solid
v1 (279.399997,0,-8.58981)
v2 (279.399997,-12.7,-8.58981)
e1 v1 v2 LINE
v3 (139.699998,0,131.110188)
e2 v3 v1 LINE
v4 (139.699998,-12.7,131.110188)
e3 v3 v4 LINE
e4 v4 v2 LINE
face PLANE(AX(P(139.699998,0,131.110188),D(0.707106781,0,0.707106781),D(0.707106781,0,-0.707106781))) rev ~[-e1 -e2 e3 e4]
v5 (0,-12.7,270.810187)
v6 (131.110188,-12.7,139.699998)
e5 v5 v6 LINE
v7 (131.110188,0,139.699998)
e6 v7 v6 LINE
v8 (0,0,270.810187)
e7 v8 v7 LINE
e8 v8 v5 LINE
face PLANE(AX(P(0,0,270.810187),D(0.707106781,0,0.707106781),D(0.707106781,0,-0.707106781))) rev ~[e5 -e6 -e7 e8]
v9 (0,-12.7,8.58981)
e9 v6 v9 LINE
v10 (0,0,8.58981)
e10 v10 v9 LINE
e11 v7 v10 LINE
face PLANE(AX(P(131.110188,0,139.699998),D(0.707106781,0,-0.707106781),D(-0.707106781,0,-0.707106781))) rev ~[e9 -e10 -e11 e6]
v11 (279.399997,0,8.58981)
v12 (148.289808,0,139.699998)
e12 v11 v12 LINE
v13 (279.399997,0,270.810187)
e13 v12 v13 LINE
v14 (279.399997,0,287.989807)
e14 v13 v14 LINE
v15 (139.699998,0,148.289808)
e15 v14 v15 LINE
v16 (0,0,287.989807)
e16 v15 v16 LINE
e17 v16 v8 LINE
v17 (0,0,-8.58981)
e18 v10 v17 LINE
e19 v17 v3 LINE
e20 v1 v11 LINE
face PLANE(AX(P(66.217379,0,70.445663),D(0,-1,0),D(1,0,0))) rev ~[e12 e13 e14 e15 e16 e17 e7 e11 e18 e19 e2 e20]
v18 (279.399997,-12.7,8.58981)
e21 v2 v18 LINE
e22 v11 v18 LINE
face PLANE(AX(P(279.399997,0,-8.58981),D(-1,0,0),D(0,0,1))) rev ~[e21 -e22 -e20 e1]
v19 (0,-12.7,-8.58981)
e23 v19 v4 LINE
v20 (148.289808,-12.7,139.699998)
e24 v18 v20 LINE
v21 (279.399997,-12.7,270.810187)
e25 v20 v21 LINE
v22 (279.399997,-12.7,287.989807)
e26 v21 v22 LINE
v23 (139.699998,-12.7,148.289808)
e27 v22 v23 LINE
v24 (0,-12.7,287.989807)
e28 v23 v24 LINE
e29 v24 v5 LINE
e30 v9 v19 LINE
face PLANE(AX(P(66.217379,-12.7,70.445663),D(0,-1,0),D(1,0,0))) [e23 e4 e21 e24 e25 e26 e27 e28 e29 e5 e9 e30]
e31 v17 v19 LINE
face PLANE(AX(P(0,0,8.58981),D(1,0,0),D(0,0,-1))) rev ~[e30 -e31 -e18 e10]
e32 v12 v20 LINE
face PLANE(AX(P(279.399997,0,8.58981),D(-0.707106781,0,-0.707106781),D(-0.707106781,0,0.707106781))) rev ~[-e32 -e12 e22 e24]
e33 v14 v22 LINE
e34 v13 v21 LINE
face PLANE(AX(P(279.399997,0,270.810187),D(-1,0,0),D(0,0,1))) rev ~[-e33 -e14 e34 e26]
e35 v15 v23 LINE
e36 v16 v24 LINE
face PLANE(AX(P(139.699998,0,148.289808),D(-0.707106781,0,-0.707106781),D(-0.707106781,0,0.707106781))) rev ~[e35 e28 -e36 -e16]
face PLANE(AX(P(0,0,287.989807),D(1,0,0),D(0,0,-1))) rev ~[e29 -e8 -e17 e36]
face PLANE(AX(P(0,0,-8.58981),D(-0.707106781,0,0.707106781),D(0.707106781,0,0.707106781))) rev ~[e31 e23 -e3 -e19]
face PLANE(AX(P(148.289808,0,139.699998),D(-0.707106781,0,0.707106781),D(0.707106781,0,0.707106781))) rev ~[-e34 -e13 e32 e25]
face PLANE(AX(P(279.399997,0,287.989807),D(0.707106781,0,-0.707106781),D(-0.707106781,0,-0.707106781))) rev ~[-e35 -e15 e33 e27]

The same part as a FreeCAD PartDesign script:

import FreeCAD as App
import Part
import Sketcher
Q = App.Units.Quantity

doc = App.newDocument("Part")
body = doc.addObject("PartDesign::Body", "Body")

# Sketch on XZ plane
sketch1 = body.newObject("Sketcher::SketchObject", "Sketch")
sketch1.AttachmentSupport = (doc.getObject("XZ_Plane"), [""])
sketch1.MapMode = "FlatFace"
sketch1.addGeometry([
    Part.LineSegment(App.Vector(0, 9, 0), App.Vector(0, -9, 0)),  # 0
    Part.LineSegment(App.Vector(0, -9, 0), App.Vector(140, 131, 0)),  # 1
    Part.LineSegment(App.Vector(140, 131, 0), App.Vector(279, -9, 0)),  # 2
    Part.LineSegment(App.Vector(279, -9, 0), App.Vector(279, 9, 0)),  # 3
    Part.LineSegment(App.Vector(279, 9, 0), App.Vector(148, 140, 0)),  # 4
    Part.LineSegment(App.Vector(148, 140, 0), App.Vector(279, 271, 0)),  # 5
    Part.LineSegment(App.Vector(279, 271, 0), App.Vector(279, 288, 0)),  # 6
    Part.LineSegment(App.Vector(279, 288, 0), App.Vector(140, 148, 0)),  # 7
    Part.LineSegment(App.Vector(140, 148, 0), App.Vector(0, 288, 0)),  # 8
    Part.LineSegment(App.Vector(0, 288, 0), App.Vector(0, 271, 0)),  # 9
    Part.LineSegment(App.Vector(0, 271, 0), App.Vector(131, 140, 0)),  # 10
    Part.LineSegment(App.Vector(131, 140, 0), App.Vector(0, 9, 0)),  # 11
], False)
sketch1.addConstraint([
    Sketcher.Constraint("Coincident", 0, 2, 1, 1),
    Sketcher.Constraint("Coincident", 1, 2, 2, 1),
    Sketcher.Constraint("Coincident", 2, 2, 3, 1),
    Sketcher.Constraint("Coincident", 3, 2, 4, 1),
    Sketcher.Constraint("Coincident", 4, 2, 5, 1),
    Sketcher.Constraint("Coincident", 5, 2, 6, 1),
    Sketcher.Constraint("Coincident", 6, 2, 7, 1),
    Sketcher.Constraint("Coincident", 7, 2, 8, 1),
    Sketcher.Constraint("Coincident", 8, 2, 9, 1),
    Sketcher.Constraint("Coincident", 9, 2, 10, 1),
    Sketcher.Constraint("Coincident", 10, 2, 11, 1),
    Sketcher.Constraint("Coincident", 11, 2, 0, 1),
    Sketcher.Constraint("Vertical", 0),
    Sketcher.Constraint("Vertical", 3),
    Sketcher.Constraint("Vertical", 6),
    Sketcher.Constraint("Vertical", 9),
    Sketcher.Constraint("Symmetric", 0, 2, 11, 2, -1, 1),
    Sketcher.Constraint("PointOnObject", 8, 2, -2),
    Sketcher.Constraint("Perpendicular", 1, 2),
    Sketcher.Constraint("Parallel", 2, 4),
    Sketcher.Constraint("Perpendicular", 4, 5),
    Sketcher.Constraint("Parallel", 5, 7),
    Sketcher.Constraint("Perpendicular", 7, 8),
    Sketcher.Constraint("Parallel", 8, 10),
    Sketcher.Constraint("Perpendicular", 10, 11),
    Sketcher.Constraint("Horizontal", 0, 2, 2, 2),
    Sketcher.Constraint("Horizontal", 6, 2, 8, 2),
    Sketcher.Constraint("Horizontal", 5, 2, 9, 2),
    Sketcher.Constraint("Horizontal", 4, 2, 10, 2),
    Sketcher.Constraint("Horizontal", 3, 2, 11, 2),
    Sketcher.Constraint("Vertical", 3, 2, 5, 2),
    Sketcher.Constraint("Equal", 3, 6),
    Sketcher.Constraint("DistanceX", -1, 1, 2, 2, Q("10.9999999 in")),
    Sketcher.Constraint("DistanceY", 2, 2, 5, 2, Q("10.9999999 in")),
    Sketcher.Constraint("DistanceY", 0, 2, 0, 1, 17.17962),
])
pad1 = body.newObject("PartDesign::Pad", "Pad")
pad1.Profile = sketch1
pad1.Length = Q("0.5 in")

doc.recompute()
